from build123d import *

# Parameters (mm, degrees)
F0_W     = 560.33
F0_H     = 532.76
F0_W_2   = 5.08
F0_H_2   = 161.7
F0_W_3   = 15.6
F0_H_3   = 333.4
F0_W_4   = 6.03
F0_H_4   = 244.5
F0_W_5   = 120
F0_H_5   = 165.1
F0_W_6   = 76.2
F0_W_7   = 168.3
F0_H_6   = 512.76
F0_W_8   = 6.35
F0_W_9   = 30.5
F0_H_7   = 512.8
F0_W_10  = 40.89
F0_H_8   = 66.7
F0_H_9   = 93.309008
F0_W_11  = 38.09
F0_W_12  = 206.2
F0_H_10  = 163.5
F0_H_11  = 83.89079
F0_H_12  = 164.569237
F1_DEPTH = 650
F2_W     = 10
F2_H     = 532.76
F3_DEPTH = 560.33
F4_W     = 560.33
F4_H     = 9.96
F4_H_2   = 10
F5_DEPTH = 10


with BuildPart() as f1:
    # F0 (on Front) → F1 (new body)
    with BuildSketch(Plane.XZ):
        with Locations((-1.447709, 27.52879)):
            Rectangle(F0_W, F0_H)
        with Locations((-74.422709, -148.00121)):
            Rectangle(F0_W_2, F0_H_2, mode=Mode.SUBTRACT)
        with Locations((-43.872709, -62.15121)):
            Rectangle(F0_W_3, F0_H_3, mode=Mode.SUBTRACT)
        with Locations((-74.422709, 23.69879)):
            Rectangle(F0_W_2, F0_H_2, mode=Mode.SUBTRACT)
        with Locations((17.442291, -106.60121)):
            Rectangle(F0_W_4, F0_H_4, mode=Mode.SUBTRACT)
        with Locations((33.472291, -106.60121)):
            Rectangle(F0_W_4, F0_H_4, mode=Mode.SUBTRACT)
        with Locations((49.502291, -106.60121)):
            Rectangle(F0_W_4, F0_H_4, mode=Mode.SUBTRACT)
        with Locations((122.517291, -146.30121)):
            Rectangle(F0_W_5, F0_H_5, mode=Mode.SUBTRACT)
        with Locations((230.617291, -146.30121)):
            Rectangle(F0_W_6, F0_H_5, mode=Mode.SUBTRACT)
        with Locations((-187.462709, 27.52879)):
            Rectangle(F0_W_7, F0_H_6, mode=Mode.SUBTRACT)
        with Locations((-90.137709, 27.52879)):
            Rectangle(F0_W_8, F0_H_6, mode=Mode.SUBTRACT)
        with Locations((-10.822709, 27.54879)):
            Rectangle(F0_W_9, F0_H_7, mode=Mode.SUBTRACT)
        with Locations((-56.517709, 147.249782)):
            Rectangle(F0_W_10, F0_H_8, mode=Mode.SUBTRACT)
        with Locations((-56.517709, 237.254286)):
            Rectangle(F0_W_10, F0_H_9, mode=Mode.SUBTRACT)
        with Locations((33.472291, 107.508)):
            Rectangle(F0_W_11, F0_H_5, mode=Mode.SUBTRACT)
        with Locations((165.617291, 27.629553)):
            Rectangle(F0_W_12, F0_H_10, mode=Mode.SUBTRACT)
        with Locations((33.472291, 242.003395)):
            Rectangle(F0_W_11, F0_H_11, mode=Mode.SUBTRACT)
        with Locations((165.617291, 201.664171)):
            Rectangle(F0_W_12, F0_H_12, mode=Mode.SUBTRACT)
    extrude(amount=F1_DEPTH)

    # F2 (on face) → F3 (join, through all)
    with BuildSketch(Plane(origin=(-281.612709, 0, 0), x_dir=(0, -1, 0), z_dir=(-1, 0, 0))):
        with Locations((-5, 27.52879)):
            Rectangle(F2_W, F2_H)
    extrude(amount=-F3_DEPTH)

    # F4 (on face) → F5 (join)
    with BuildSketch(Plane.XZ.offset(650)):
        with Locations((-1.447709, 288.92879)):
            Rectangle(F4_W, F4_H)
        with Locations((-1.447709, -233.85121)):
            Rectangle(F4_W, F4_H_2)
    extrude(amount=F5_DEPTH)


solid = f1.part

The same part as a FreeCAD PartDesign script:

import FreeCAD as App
import Part
import Sketcher

V = App.Vector
Q = App.Units.Quantity

doc = App.newDocument("Part")
body = doc.addObject("PartDesign::Body", "Body")

sketch1 = body.newObject("Sketcher::SketchObject", "Sketch")
sketch1.AttachmentSupport = (doc.getObject("XZ_Plane"), [""])
sketch1.MapMode = "FlatFace"
sketch1.addGeometry(Part.LineSegment(V(-282, 294, 0), V(-282, -239, 0)), False)
sketch1.addGeometry(Part.LineSegment(V(-282, -239, 0), V(279, -239, 0)), False)
sketch1.addGeometry(Part.LineSegment(V(279, -239, 0), V(279, 294, 0)), False)
sketch1.addGeometry(Part.LineSegment(V(279, 294, 0), V(-282, 294, 0)), False)
sketch1.addGeometry(Part.LineSegment(V(-72, -229, 0), V(-77, -229, 0)), False)
sketch1.addGeometry(Part.LineSegment(V(-77, -229, 0), V(-77, -67, 0)), False)
sketch1.addGeometry(Part.LineSegment(V(-77, -67, 0), V(-72, -67, 0)), False)
sketch1.addGeometry(Part.LineSegment(V(-72, -67, 0), V(-72, -229, 0)), False)
sketch1.addGeometry(Part.LineSegment(V(-103, -229, 0), V(-272, -229, 0)), False)
sketch1.addGeometry(Part.LineSegment(V(-272, -229, 0), V(-272, 284, 0)), False)
sketch1.addGeometry(Part.LineSegment(V(-272, 284, 0), V(-103, 284, 0)), False)
sketch1.addGeometry(Part.LineSegment(V(-103, 284, 0), V(-103, -229, 0)), False)
sketch1.addGeometry(Part.LineSegment(V(-36, -229, 0), V(-52, -229, 0)), False)
sketch1.addGeometry(Part.LineSegment(V(-52, -229, 0), V(-52, 105, 0)), False)
sketch1.addGeometry(Part.LineSegment(V(-52, 105, 0), V(-36, 105, 0)), False)
sketch1.addGeometry(Part.LineSegment(V(-36, 105, 0), V(-36, -229, 0)), False)
sketch1.addGeometry(Part.LineSegment(V(-87, -229, 0), V(-93, -229, 0)), False)
sketch1.addGeometry(Part.LineSegment(V(-93, -229, 0), V(-93, 284, 0)), False)
sketch1.addGeometry(Part.LineSegment(V(-93, 284, 0), V(-87, 284, 0)), False)
sketch1.addGeometry(Part.LineSegment(V(-87, 284, 0), V(-87, -229, 0)), False)
sketch1.addGeometry(Part.LineSegment(V(-72, -57, 0), V(-77, -57, 0)), False)
sketch1.addGeometry(Part.LineSegment(V(-77, -57, 0), V(-77, 105, 0)), False)
sketch1.addGeometry(Part.LineSegment(V(-77, 105, 0), V(-72, 105, 0)), False)
sketch1.addGeometry(Part.LineSegment(V(-72, 105, 0), V(-72, -57, 0)), False)
sketch1.addGeometry(Part.LineSegment(V(20, -229, 0), V(14, -229, 0)), False)
sketch1.addGeometry(Part.LineSegment(V(14, -229, 0), V(14, 16, 0)), False)
sketch1.addGeometry(Part.LineSegment(V(14, 16, 0), V(20, 16, 0)), False)
sketch1.addGeometry(Part.LineSegment(V(20, 16, 0), V(20, -229, 0)), False)
sketch1.addGeometry(Part.LineSegment(V(36, -229, 0), V(30, -229, 0)), False)
sketch1.addGeometry(Part.LineSegment(V(30, -229, 0), V(30, 16, 0)), False)
sketch1.addGeometry(Part.LineSegment(V(30, 16, 0), V(36, 16, 0)), False)
sketch1.addGeometry(Part.LineSegment(V(36, 16, 0), V(36, -229, 0)), False)
sketch1.addGeometry(Part.LineSegment(V(53, -229, 0), V(46, -229, 0)), False)
sketch1.addGeometry(Part.LineSegment(V(46, -229, 0), V(46, 16, 0)), False)
sketch1.addGeometry(Part.LineSegment(V(46, 16, 0), V(53, 16, 0)), False)
sketch1.addGeometry(Part.LineSegment(V(53, 16, 0), V(53, -229, 0)), False)
sketch1.addGeometry(Part.LineSegment(V(183, -229, 0), V(63, -229, 0)), False)
sketch1.addGeometry(Part.LineSegment(V(63, -229, 0), V(63, -64, 0)), False)
sketch1.addGeometry(Part.LineSegment(V(63, -64, 0), V(183, -64, 0)), False)
sketch1.addGeometry(Part.LineSegment(V(183, -64, 0), V(183, -229, 0)), False)
sketch1.addGeometry(Part.LineSegment(V(269, -229, 0), V(193, -229, 0)), False)
sketch1.addGeometry(Part.LineSegment(V(193, -229, 0), V(193, -64, 0)), False)
sketch1.addGeometry(Part.LineSegment(V(193, -64, 0), V(269, -64, 0)), False)
sketch1.addGeometry(Part.LineSegment(V(269, -64, 0), V(269, -229, 0)), False)
sketch1.addGeometry(Part.LineSegment(V(4, -229, 0), V(-26, -229, 0)), False)
sketch1.addGeometry(Part.LineSegment(V(-26, -229, 0), V(-26, 284, 0)), False)
sketch1.addGeometry(Part.LineSegment(V(-26, 284, 0), V(4, 284, 0)), False)
sketch1.addGeometry(Part.LineSegment(V(4, 284, 0), V(4, -229, 0)), False)
sketch1.addGeometry(Part.LineSegment(V(-36, 114, 0), V(-77, 114, 0)), False)
sketch1.addGeometry(Part.LineSegment(V(-77, 114, 0), V(-77, 181, 0)), False)
sketch1.addGeometry(Part.LineSegment(V(-77, 181, 0), V(-36, 181, 0)), False)
sketch1.addGeometry(Part.LineSegment(V(-36, 181, 0), V(-36, 114, 0)), False)
sketch1.addGeometry(Part.LineSegment(V(-36, 191, 0), V(-77, 191, 0)), False)
sketch1.addGeometry(Part.LineSegment(V(-77, 191, 0), V(-77, 284, 0)), False)
sketch1.addGeometry(Part.LineSegment(V(-77, 284, 0), V(-36, 284, 0)), False)
sketch1.addGeometry(Part.LineSegment(V(-36, 284, 0), V(-36, 191, 0)), False)
sketch1.addGeometry(Part.LineSegment(V(53, 25, 0), V(14, 25, 0)), False)
sketch1.addGeometry(Part.LineSegment(V(14, 25, 0), V(14, 190, 0)), False)
sketch1.addGeometry(Part.LineSegment(V(14, 190, 0), V(53, 190, 0)), False)
sketch1.addGeometry(Part.LineSegment(V(53, 190, 0), V(53, 25, 0)), False)
sketch1.addGeometry(Part.LineSegment(V(269, -54, 0), V(63, -54, 0)), False)
sketch1.addGeometry(Part.LineSegment(V(63, -54, 0), V(63, 109, 0)), False)
sketch1.addGeometry(Part.LineSegment(V(63, 109, 0), V(269, 109, 0)), False)
sketch1.addGeometry(Part.LineSegment(V(269, 109, 0), V(269, -54, 0)), False)
sketch1.addGeometry(Part.LineSegment(V(53, 200, 0), V(14, 200, 0)), False)
sketch1.addGeometry(Part.LineSegment(V(14, 200, 0), V(14, 284, 0)), False)
sketch1.addGeometry(Part.LineSegment(V(14, 284, 0), V(53, 284, 0)), False)
sketch1.addGeometry(Part.LineSegment(V(53, 284, 0), V(53, 200, 0)), False)
sketch1.addGeometry(Part.LineSegment(V(269, 119, 0), V(63, 119, 0)), False)
sketch1.addGeometry(Part.LineSegment(V(63, 119, 0), V(63, 284, 0)), False)
sketch1.addGeometry(Part.LineSegment(V(63, 284, 0), V(269, 284, 0)), False)
sketch1.addGeometry(Part.LineSegment(V(269, 284, 0), V(269, 119, 0)), False)
sketch1.addConstraint(Sketcher.Constraint("Coincident", 0, 2, 1, 1))
sketch1.addConstraint(Sketcher.Constraint("Coincident", 1, 2, 2, 1))
sketch1.addConstraint(Sketcher.Constraint("Coincident", 2, 2, 3, 1))
sketch1.addConstraint(Sketcher.Constraint("Coincident", 3, 2, 0, 1))
sketch1.addConstraint(Sketcher.Constraint("Coincident", 4, 2, 5, 1))
sketch1.addConstraint(Sketcher.Constraint("Coincident", 5, 2, 6, 1))
sketch1.addConstraint(Sketcher.Constraint("Coincident", 6, 2, 7, 1))
sketch1.addConstraint(Sketcher.Constraint("Coincident", 7, 2, 4, 1))
sketch1.addConstraint(Sketcher.Constraint("Coincident", 8, 2, 9, 1))
sketch1.addConstraint(Sketcher.Constraint("Coincident", 9, 2, 10, 1))
sketch1.addConstraint(Sketcher.Constraint("Coincident", 10, 2, 11, 1))
sketch1.addConstraint(Sketcher.Constraint("Coincident", 11, 2, 8, 1))
sketch1.addConstraint(Sketcher.Constraint("Coincident", 12, 2, 13, 1))
sketch1.addConstraint(Sketcher.Constraint("Coincident", 13, 2, 14, 1))
sketch1.addConstraint(Sketcher.Constraint("Coincident", 14, 2, 15, 1))
sketch1.addConstraint(Sketcher.Constraint("Coincident", 15, 2, 12, 1))
sketch1.addConstraint(Sketcher.Constraint("Coincident", 16, 2, 17, 1))
sketch1.addConstraint(Sketcher.Constraint("Coincident", 17, 2, 18, 1))
sketch1.addConstraint(Sketcher.Constraint("Coincident", 18, 2, 19, 1))
sketch1.addConstraint(Sketcher.Constraint("Coincident", 19, 2, 16, 1))
sketch1.addConstraint(Sketcher.Constraint("Coincident", 20, 2, 21, 1))
sketch1.addConstraint(Sketcher.Constraint("Coincident", 21, 2, 22, 1))
sketch1.addConstraint(Sketcher.Constraint("Coincident", 22, 2, 23, 1))
sketch1.addConstraint(Sketcher.Constraint("Coincident", 23, 2, 20, 1))
sketch1.addConstraint(Sketcher.Constraint("Coincident", 24, 2, 25, 1))
sketch1.addConstraint(Sketcher.Constraint("Coincident", 25, 2, 26, 1))
sketch1.addConstraint(Sketcher.Constraint("Coincident", 26, 2, 27, 1))
sketch1.addConstraint(Sketcher.Constraint("Coincident", 27, 2, 24, 1))
sketch1.addConstraint(Sketcher.Constraint("Coincident", 28, 2, 29, 1))
sketch1.addConstraint(Sketcher.Constraint("Coincident", 29, 2, 30, 1))
sketch1.addConstraint(Sketcher.Constraint("Coincident", 30, 2, 31, 1))
sketch1.addConstraint(Sketcher.Constraint("Coincident", 31, 2, 28, 1))
sketch1.addConstraint(Sketcher.Constraint("Coincident", 32, 2, 33, 1))
sketch1.addConstraint(Sketcher.Constraint("Coincident", 33, 2, 34, 1))
sketch1.addConstraint(Sketcher.Constraint("Coincident", 34, 2, 35, 1))
sketch1.addConstraint(Sketcher.Constraint("Coincident", 35, 2, 32, 1))
sketch1.addConstraint(Sketcher.Constraint("Coincident", 36, 2, 37, 1))
sketch1.addConstraint(Sketcher.Constraint("Coincident", 37, 2, 38, 1))
sketch1.addConstraint(Sketcher.Constraint("Coincident", 38, 2, 39, 1))
sketch1.addConstraint(Sketcher.Constraint("Coincident", 39, 2, 36, 1))
sketch1.addConstraint(Sketcher.Constraint("Coincident", 40, 2, 41, 1))
sketch1.addConstraint(Sketcher.Constraint("Coincident", 41, 2, 42, 1))
sketch1.addConstraint(Sketcher.Constraint("Coincident", 42, 2, 43, 1))
sketch1.addConstraint(Sketcher.Constraint("Coincident", 43, 2, 40, 1))
sketch1.addConstraint(Sketcher.Constraint("Coincident", 44, 2, 45, 1))
sketch1.addConstraint(Sketcher.Constraint("Coincident", 45, 2, 46, 1))
sketch1.addConstraint(Sketcher.Constraint("Coincident", 46, 2, 47, 1))
sketch1.addConstraint(Sketcher.Constraint("Coincident", 47, 2, 44, 1))
sketch1.addConstraint(Sketcher.Constraint("Coincident", 48, 2, 49, 1))
sketch1.addConstraint(Sketcher.Constraint("Coincident", 49, 2, 50, 1))
sketch1.addConstraint(Sketcher.Constraint("Coincident", 50, 2, 51, 1))
sketch1.addConstraint(Sketcher.Constraint("Coincident", 51, 2, 48, 1))
sketch1.addConstraint(Sketcher.Constraint("Coincident", 52, 2, 53, 1))
sketch1.addConstraint(Sketcher.Constraint("Coincident", 53, 2, 54, 1))
sketch1.addConstraint(Sketcher.Constraint("Coincident", 54, 2, 55, 1))
sketch1.addConstraint(Sketcher.Constraint("Coincident", 55, 2, 52, 1))
sketch1.addConstraint(Sketcher.Constraint("Coincident", 56, 2, 57, 1))
sketch1.addConstraint(Sketcher.Constraint("Coincident", 57, 2, 58, 1))
sketch1.addConstraint(Sketcher.Constraint("Coincident", 58, 2, 59, 1))
sketch1.addConstraint(Sketcher.Constraint("Coincident", 59, 2, 56, 1))
sketch1.addConstraint(Sketcher.Constraint("Coincident", 60, 2, 61, 1))
sketch1.addConstraint(Sketcher.Constraint("Coincident", 61, 2, 62, 1))
sketch1.addConstraint(Sketcher.Constraint("Coincident", 62, 2, 63, 1))
sketch1.addConstraint(Sketcher.Constraint("Coincident", 63, 2, 60, 1))
sketch1.addConstraint(Sketcher.Constraint("Coincident", 64, 2, 65, 1))
sketch1.addConstraint(Sketcher.Constraint("Coincident", 65, 2, 66, 1))
sketch1.addConstraint(Sketcher.Constraint("Coincident", 66, 2, 67, 1))
sketch1.addConstraint(Sketcher.Constraint("Coincident", 67, 2, 64, 1))
sketch1.addConstraint(Sketcher.Constraint("Coincident", 68, 2, 69, 1))
sketch1.addConstraint(Sketcher.Constraint("Coincident", 69, 2, 70, 1))
sketch1.addConstraint(Sketcher.Constraint("Coincident", 70, 2, 71, 1))
sketch1.addConstraint(Sketcher.Constraint("Coincident", 71, 2, 68, 1))
sketch1.addConstraint(Sketcher.Constraint("Vertical", 0))
sketch1.addConstraint(Sketcher.Constraint("Horizontal", 1))
sketch1.addConstraint(Sketcher.Constraint("Vertical", 2))
sketch1.addConstraint(Sketcher.Constraint("Horizontal", 3))
sketch1.addConstraint(Sketcher.Constraint("Horizontal", 4))
sketch1.addConstraint(Sketcher.Constraint("Vertical", 5))
sketch1.addConstraint(Sketcher.Constraint("Horizontal", 6))
sketch1.addConstraint(Sketcher.Constraint("Vertical", 7))
sketch1.addConstraint(Sketcher.Constraint("Horizontal", 8))
sketch1.addConstraint(Sketcher.Constraint("Vertical", 9))
sketch1.addConstraint(Sketcher.Constraint("Horizontal", 10))
sketch1.addConstraint(Sketcher.Constraint("Vertical", 11))
sketch1.addConstraint(Sketcher.Constraint("Horizontal", 12))
sketch1.addConstraint(Sketcher.Constraint("Vertical", 13))
sketch1.addConstraint(Sketcher.Constraint("Horizontal", 14))
sketch1.addConstraint(Sketcher.Constraint("Vertical", 15))
sketch1.addConstraint(Sketcher.Constraint("Horizontal", 16))
sketch1.addConstraint(Sketcher.Constraint("Vertical", 17))
sketch1.addConstraint(Sketcher.Constraint("Horizontal", 18))
sketch1.addConstraint(Sketcher.Constraint("Vertical", 19))
sketch1.addConstraint(Sketcher.Constraint("Horizontal", 20))
sketch1.addConstraint(Sketcher.Constraint("Vertical", 21))
sketch1.addConstraint(Sketcher.Constraint("Horizontal", 22))
sketch1.addConstraint(Sketcher.Constraint("Vertical", 23))
sketch1.addConstraint(Sketcher.Constraint("Horizontal", 24))
sketch1.addConstraint(Sketcher.Constraint("Vertical", 25))
sketch1.addConstraint(Sketcher.Constraint("Horizontal", 26))
sketch1.addConstraint(Sketcher.Constraint("Vertical", 27))
sketch1.addConstraint(Sketcher.Constraint("Horizontal", 28))
sketch1.addConstraint(Sketcher.Constraint("Vertical", 29))
sketch1.addConstraint(Sketcher.Constraint("Horizontal", 30))
sketch1.addConstraint(Sketcher.Constraint("Vertical", 31))
sketch1.addConstraint(Sketcher.Constraint("Horizontal", 32))
sketch1.addConstraint(Sketcher.Constraint("Vertical", 33))
sketch1.addConstraint(Sketcher.Constraint("Horizontal", 34))
sketch1.addConstraint(Sketcher.Constraint("Vertical", 35))
sketch1.addConstraint(Sketcher.Constraint("Horizontal", 36))
sketch1.addConstraint(Sketcher.Constraint("Vertical", 37))
sketch1.addConstraint(Sketcher.Constraint("Horizontal", 38))
sketch1.addConstraint(Sketcher.Constraint("Vertical", 39))
sketch1.addConstraint(Sketcher.Constraint("Horizontal", 40))
sketch1.addConstraint(Sketcher.Constraint("Vertical", 41))
sketch1.addConstraint(Sketcher.Constraint("Horizontal", 42))
sketch1.addConstraint(Sketcher.Constraint("Vertical", 43))
sketch1.addConstraint(Sketcher.Constraint("Horizontal", 44))
sketch1.addConstraint(Sketcher.Constraint("Vertical", 45))
sketch1.addConstraint(Sketcher.Constraint("Horizontal", 46))
sketch1.addConstraint(Sketcher.Constraint("Vertical", 47))
sketch1.addConstraint(Sketcher.Constraint("Horizontal", 48))
sketch1.addConstraint(Sketcher.Constraint("Vertical", 49))
sketch1.addConstraint(Sketcher.Constraint("Horizontal", 50))
sketch1.addConstraint(Sketcher.Constraint("Vertical", 51))
sketch1.addConstraint(Sketcher.Constraint("Horizontal", 52))
sketch1.addConstraint(Sketcher.Constraint("Vertical", 53))
sketch1.addConstraint(Sketcher.Constraint("Horizontal", 54))
sketch1.addConstraint(Sketcher.Constraint("Vertical", 55))
sketch1.addConstraint(Sketcher.Constraint("Horizontal", 56))
sketch1.addConstraint(Sketcher.Constraint("Vertical", 57))
sketch1.addConstraint(Sketcher.Constraint("Horizontal", 58))
sketch1.addConstraint(Sketcher.Constraint("Vertical", 59))
sketch1.addConstraint(Sketcher.Constraint("Horizontal", 60))
sketch1.addConstraint(Sketcher.Constraint("Vertical", 61))
sketch1.addConstraint(Sketcher.Constraint("Horizontal", 62))
sketch1.addConstraint(Sketcher.Constraint("Vertical", 63))
sketch1.addConstraint(Sketcher.Constraint("Horizontal", 64))
sketch1.addConstraint(Sketcher.Constraint("Vertical", 65))
sketch1.addConstraint(Sketcher.Constraint("Horizontal", 66))
sketch1.addConstraint(Sketcher.Constraint("Vertical", 67))
sketch1.addConstraint(Sketcher.Constraint("Horizontal", 68))
sketch1.addConstraint(Sketcher.Constraint("Vertical", 69))
sketch1.addConstraint(Sketcher.Constraint("Horizontal", 70))
sketch1.addConstraint(Sketcher.Constraint("Vertical", 71))
sketch1.addConstraint(Sketcher.Constraint("Horizontal", 7, 2, 8, 2))
sketch1.addConstraint(Sketcher.Constraint("Horizontal", 11, 2, 12, 2))
sketch1.addConstraint(Sketcher.Constraint("Horizontal", 15, 2, 16, 2))
sketch1.addConstraint(Sketcher.Constraint("Horizontal", 10, 2, 17, 2))
sketch1.addConstraint(Sketcher.Constraint("Horizontal", 14, 2, 21, 2))
sketch1.addConstraint(Sketcher.Constraint("Horizontal", 19, 2, 24, 2))
sketch1.addConstraint(Sketcher.Constraint("Horizontal", 27, 2, 28, 2))
sketch1.addConstraint(Sketcher.Constraint("Horizontal", 26, 2, 29, 2))
sketch1.addConstraint(Sketcher.Constraint("Horizontal", 31, 2, 32, 2))
sketch1.addConstraint(Sketcher.Constraint("Horizontal", 30, 2, 33, 2))
sketch1.addConstraint(Sketcher.Constraint("Horizontal", 35, 2, 36, 2))
sketch1.addConstraint(Sketcher.Constraint("Horizontal", 39, 2, 40, 2))
sketch1.addConstraint(Sketcher.Constraint("Horizontal", 38, 2, 41, 2))
sketch1.addConstraint(Sketcher.Constraint("Horizontal", 43, 2, 44, 2))
sketch1.addConstraint(Sketcher.Constraint("Horizontal", 18, 2, 53, 2))
sketch1.addConstraint(Sketcher.Constraint("Horizontal", 46, 2, 65, 2))
sketch1.addConstraint(Sketcher.Constraint("Horizontal", 66, 2, 69, 2))
sketch1.addConstraint(Sketcher.Constraint("Vertical", 5, 2, 20, 2))
sketch1.addConstraint(Sketcher.Constraint("Vertical", 7, 2, 22, 2))
sketch1.addConstraint(Sketcher.Constraint("Vertical", 21, 2, 48, 2))
sketch1.addConstraint(Sketcher.Constraint("Vertical", 15, 2, 50, 2))
sketch1.addConstraint(Sketcher.Constraint("Vertical", 49, 2, 52, 2))
sketch1.addConstraint(Sketcher.Constraint("Vertical", 51, 2, 54, 2))
sketch1.addConstraint(Sketcher.Constraint("Vertical", 25, 2, 56, 2))
sketch1.addConstraint(Sketcher.Constraint("Vertical", 35, 2, 58, 2))
sketch1.addConstraint(Sketcher.Constraint("Vertical", 37, 2, 60, 2))
sketch1.addConstraint(Sketcher.Constraint("Vertical", 43, 2, 62, 2))
sketch1.addConstraint(Sketcher.Constraint("Vertical", 57, 2, 64, 2))
sketch1.addConstraint(Sketcher.Constraint("Vertical", 59, 2, 66, 2))
sketch1.addConstraint(Sketcher.Constraint("Vertical", 61, 2, 68, 2))
sketch1.addConstraint(Sketcher.Constraint("Vertical", 63, 2, 70, 2))
sketch1.addConstraint(Sketcher.Constraint("Equal", 26, 28))
sketch1.addConstraint(Sketcher.Constraint("Equal", 30, 32))
sketch1.addConstraint(Sketcher.Constraint("Equal", 7, 21))
sketch1.addConstraint(Sketcher.Constraint("Equal", 43, 57))
sketch1.addConstraint(Sketcher.Constraint("DistanceX", 36, 2, 36, 1, Q("120 mm")))
sketch1.addConstraint(Sketcher.Constraint("DistanceX", 8, 2, 8, 1, Q("168.3 mm")))
sketch1.addConstraint(Sketcher.Constraint("DistanceX", 12, 2, 12, 1, Q("15.6 mm")))
sketch1.addConstraint(Sketcher.Constraint("DistanceX", 40, 2, 40, 1, Q("76.2 mm")))
sketch1.addConstraint(Sketcher.Constraint("DistanceX", 44, 2, 44, 1, Q("30.5 mm")))
sketch1.addConstraint(Sketcher.Constraint("DistanceX", 60, 2, 60, 1, Q("206.2 mm")))
sketch1.addConstraint(Sketcher.Constraint("DistanceY", 5, 1, 5, 2, Q("161.7 mm")))
sketch1.addConstraint(Sketcher.Constraint("DistanceY", 13, 1, 13, 2, Q("333.4 mm")))
sketch1.addConstraint(Sketcher.Constraint("DistanceY", 25, 1, 25, 2, Q("244.5 mm")))
sketch1.addConstraint(Sketcher.Constraint("DistanceY", 37, 1, 37, 2, Q("165.1 mm")))
sketch1.addConstraint(Sketcher.Constraint("DistanceY", 45, 1, 45, 2, Q("512.8 mm")))
sketch1.addConstraint(Sketcher.Constraint("DistanceY", 49, 1, 49, 2, Q("66.7 mm")))
sketch1.addConstraint(Sketcher.Constraint("DistanceY", 61, 1, 61, 2, Q("163.5 mm")))
sketch1.addConstraint(Sketcher.Constraint("DistanceX", 1, 1, 1, 2, Q("560.33 mm")))
sketch1.addConstraint(Sketcher.Constraint("DistanceX", 4, 2, 4, 1, Q("5.08 mm")))
sketch1.addConstraint(Sketcher.Constraint("DistanceX", 16, 2, 16, 1, Q("6.35 mm")))
sketch1.addConstraint(Sketcher.Constraint("DistanceX", 24, 2, 24, 1, Q("6.03 mm")))
sketch1.addConstraint(Sketcher.Constraint("DistanceX", 48, 2, 48, 1, Q("40.89 mm")))
sketch1.addConstraint(Sketcher.Constraint("DistanceX", 56, 2, 56, 1, Q("38.09 mm")))
sketch1.addConstraint(Sketcher.Constraint("DistanceY", 0, 2, 0, 1, Q("532.76 mm")))
sketch1.addConstraint(Sketcher.Constraint("DistanceY", 9, 1, 9, 2, Q("512.76 mm")))
sketch1.addConstraint(Sketcher.Constraint("DistanceY", -1, 1, 56, 2, Q("24.958 mm")))
sketch1.addConstraint(Sketcher.Constraint("DistanceY", -1, 1, 64, 2, Q("200.058 mm")))
sketch1.addConstraint(Sketcher.Constraint("DistanceY", 53, 1, 53, 2, Q("93.309008 mm")))
sketch1.addConstraint(Sketcher.Constraint("DistanceY", 65, 1, 65, 2, Q("83.89079 mm")))
sketch1.addConstraint(Sketcher.Constraint("DistanceY", 69, 1, 69, 2, Q("164.569237 mm")))
sketch1.addConstraint(Sketcher.Constraint("DistanceX", 0, 2, -1, 1, Q("281.612709 mm")))
sketch1.addConstraint(Sketcher.Constraint("DistanceY", 0, 2, -1, 1, Q("238.85121 mm")))
sketch1.addConstraint(Sketcher.Constraint("DistanceX", 4, 2, -1, 1, Q("76.962709 mm")))
sketch1.addConstraint(Sketcher.Constraint("DistanceX", 8, 2, -1, 1, Q("271.612709 mm")))
sketch1.addConstraint(Sketcher.Constraint("DistanceX", 16, 2, -1, 1, Q("93.312709 mm")))
sketch1.addConstraint(Sketcher.Constraint("DistanceX", -1, 1, 24, 2, Q("14.427291 mm")))
sketch1.addConstraint(Sketcher.Constraint("DistanceX", -1, 1, 28, 2, Q("30.457291 mm")))
sketch1.addConstraint(Sketcher.Constraint("DistanceX", -1, 1, 36, 2, Q("62.517291 mm")))
sketch1.addConstraint(Sketcher.Constraint("DistanceX", 44, 2, -1, 1, Q("26.072709 mm")))
sketch1.addConstraint(Sketcher.Constraint("DistanceY", -1, 1, 48, 2, Q("113.899782 mm")))
sketch1.addConstraint(Sketcher.Constraint("DistanceY", 60, 2, -1, 1, Q("54.120447 mm")))
pad1 = body.newObject("PartDesign::Pad", "Pad")
pad1.Profile = sketch1
pad1.Length = 650

sketch2 = body.newObject("Sketcher::SketchObject", "Sketch001")
sketch2.AttachmentSupport = (doc.getObject("YZ_Plane"), [""])
sketch2.MapMode = "FlatFace"
sketch2.AttachmentOffset = App.Placement(V(0, 0, -281.612709), App.Rotation())
sketch2.addGeometry(Part.LineSegment(V(10, 294, 0), V(10, -239, 0)), False)
sketch2.addGeometry(Part.LineSegment(V(10, -239, 0), V(0, -239, 0)), False)
sketch2.addGeometry(Part.LineSegment(V(0, -239, 0), V(0, 294, 0)), False)
sketch2.addGeometry(Part.LineSegment(V(0, 294, 0), V(10, 294, 0)), False)
sketch2.addConstraint(Sketcher.Constraint("Coincident", 0, 2, 1, 1))
sketch2.addConstraint(Sketcher.Constraint("Coincident", 1, 2, 2, 1))
sketch2.addConstraint(Sketcher.Constraint("Coincident", 2, 2, 3, 1))
sketch2.addConstraint(Sketcher.Constraint("Coincident", 3, 2, 0, 1))
sketch2.addConstraint(Sketcher.Constraint("Vertical", 0))
sketch2.addConstraint(Sketcher.Constraint("Horizontal", 1))
sketch2.addConstraint(Sketcher.Constraint("Vertical", 2))
sketch2.addConstraint(Sketcher.Constraint("Horizontal", 3))
sketch2.addConstraint(Sketcher.Constraint("PointOnObject", 1, 2, -2))
sketch2.addConstraint(Sketcher.Constraint("DistanceX", 1, 2, 1, 1, Q("10 mm")))
sketch2.addConstraint(Sketcher.Constraint("DistanceY", 0, 2, 0, 1, Q("532.76 mm")))
sketch2.addConstraint(Sketcher.Constraint("DistanceY", 0, 2, -1, 1, Q("238.85121 mm")))
pad2 = body.newObject("PartDesign::Pad", "Pad001")
pad2.Profile = sketch2
pad2.Length = 560.33

sketch3 = body.newObject("Sketcher::SketchObject", "Sketch002")
sketch3.AttachmentSupport = (doc.getObject("XZ_Plane"), [""])
sketch3.MapMode = "FlatFace"
sketch3.AttachmentOffset = App.Placement(V(0, 0, 650), App.Rotation())
sketch3.addGeometry(Part.LineSegment(V(-282, 294, 0), V(-282, 284, 0)), False)
sketch3.addGeometry(Part.LineSegment(V(-282, 284, 0), V(279, 284, 0)), False)
sketch3.addGeometry(Part.LineSegment(V(279, 284, 0), V(279, 294, 0)), False)
sketch3.addGeometry(Part.LineSegment(V(279, 294, 0), V(-282, 294, 0)), False)
sketch3.addGeometry(Part.LineSegment(V(-282, -229, 0), V(-282, -239, 0)), False)
sketch3.addGeometry(Part.LineSegment(V(-282, -239, 0), V(279, -239, 0)), False)
sketch3.addGeometry(Part.LineSegment(V(279, -239, 0), V(279, -229, 0)), False)
sketch3.addGeometry(Part.LineSegment(V(279, -229, 0), V(-282, -229, 0)), False)
sketch3.addConstraint(Sketcher.Constraint("Coincident", 0, 2, 1, 1))
sketch3.addConstraint(Sketcher.Constraint("Coincident", 1, 2, 2, 1))
sketch3.addConstraint(Sketcher.Constraint("Coincident", 2, 2, 3, 1))
sketch3.addConstraint(Sketcher.Constraint("Coincident", 3, 2, 0, 1))
sketch3.addConstraint(Sketcher.Constraint("Coincident", 4, 2, 5, 1))
sketch3.addConstraint(Sketcher.Constraint("Coincident", 5, 2, 6, 1))
sketch3.addConstraint(Sketcher.Constraint("Coincident", 6, 2, 7, 1))
sketch3.addConstraint(Sketcher.Constraint("Coincident", 7, 2, 4, 1))
sketch3.addConstraint(Sketcher.Constraint("Vertical", 0))
sketch3.addConstraint(Sketcher.Constraint("Horizontal", 1))
sketch3.addConstraint(Sketcher.Constraint("Vertical", 2))
sketch3.addConstraint(Sketcher.Constraint("Horizontal", 3))
sketch3.addConstraint(Sketcher.Constraint("Vertical", 4))
sketch3.addConstraint(Sketcher.Constraint("Horizontal", 5))
sketch3.addConstraint(Sketcher.Constraint("Vertical", 6))
sketch3.addConstraint(Sketcher.Constraint("Horizontal", 7))
sketch3.addConstraint(Sketcher.Constraint("Vertical", 3, 2, 4, 2))
sketch3.addConstraint(Sketcher.Constraint("Vertical", 2, 2, 5, 2))
sketch3.addConstraint(Sketcher.Constraint("DistanceY", 4, 2, 4, 1, Q("10 mm")))
sketch3.addConstraint(Sketcher.Constraint("DistanceX", 1, 1, 1, 2, Q("560.33 mm")))
sketch3.addConstraint(Sketcher.Constraint("DistanceY", 0, 2, 0, 1, Q("9.96 mm")))
sketch3.addConstraint(Sketcher.Constraint("DistanceY", 4, 2, 0, 2, Q("522.8 mm")))
sketch3.addConstraint(Sketcher.Constraint("DistanceX", 0, 2, -1, 1, Q("281.612709 mm")))
sketch3.addConstraint(Sketcher.Constraint("DistanceY", -1, 1, 0, 2, Q("283.94879 mm")))
pad3 = body.newObject("PartDesign::Pad", "Pad002")
pad3.Profile = sketch3
pad3.Length = 10

doc.recompute()
